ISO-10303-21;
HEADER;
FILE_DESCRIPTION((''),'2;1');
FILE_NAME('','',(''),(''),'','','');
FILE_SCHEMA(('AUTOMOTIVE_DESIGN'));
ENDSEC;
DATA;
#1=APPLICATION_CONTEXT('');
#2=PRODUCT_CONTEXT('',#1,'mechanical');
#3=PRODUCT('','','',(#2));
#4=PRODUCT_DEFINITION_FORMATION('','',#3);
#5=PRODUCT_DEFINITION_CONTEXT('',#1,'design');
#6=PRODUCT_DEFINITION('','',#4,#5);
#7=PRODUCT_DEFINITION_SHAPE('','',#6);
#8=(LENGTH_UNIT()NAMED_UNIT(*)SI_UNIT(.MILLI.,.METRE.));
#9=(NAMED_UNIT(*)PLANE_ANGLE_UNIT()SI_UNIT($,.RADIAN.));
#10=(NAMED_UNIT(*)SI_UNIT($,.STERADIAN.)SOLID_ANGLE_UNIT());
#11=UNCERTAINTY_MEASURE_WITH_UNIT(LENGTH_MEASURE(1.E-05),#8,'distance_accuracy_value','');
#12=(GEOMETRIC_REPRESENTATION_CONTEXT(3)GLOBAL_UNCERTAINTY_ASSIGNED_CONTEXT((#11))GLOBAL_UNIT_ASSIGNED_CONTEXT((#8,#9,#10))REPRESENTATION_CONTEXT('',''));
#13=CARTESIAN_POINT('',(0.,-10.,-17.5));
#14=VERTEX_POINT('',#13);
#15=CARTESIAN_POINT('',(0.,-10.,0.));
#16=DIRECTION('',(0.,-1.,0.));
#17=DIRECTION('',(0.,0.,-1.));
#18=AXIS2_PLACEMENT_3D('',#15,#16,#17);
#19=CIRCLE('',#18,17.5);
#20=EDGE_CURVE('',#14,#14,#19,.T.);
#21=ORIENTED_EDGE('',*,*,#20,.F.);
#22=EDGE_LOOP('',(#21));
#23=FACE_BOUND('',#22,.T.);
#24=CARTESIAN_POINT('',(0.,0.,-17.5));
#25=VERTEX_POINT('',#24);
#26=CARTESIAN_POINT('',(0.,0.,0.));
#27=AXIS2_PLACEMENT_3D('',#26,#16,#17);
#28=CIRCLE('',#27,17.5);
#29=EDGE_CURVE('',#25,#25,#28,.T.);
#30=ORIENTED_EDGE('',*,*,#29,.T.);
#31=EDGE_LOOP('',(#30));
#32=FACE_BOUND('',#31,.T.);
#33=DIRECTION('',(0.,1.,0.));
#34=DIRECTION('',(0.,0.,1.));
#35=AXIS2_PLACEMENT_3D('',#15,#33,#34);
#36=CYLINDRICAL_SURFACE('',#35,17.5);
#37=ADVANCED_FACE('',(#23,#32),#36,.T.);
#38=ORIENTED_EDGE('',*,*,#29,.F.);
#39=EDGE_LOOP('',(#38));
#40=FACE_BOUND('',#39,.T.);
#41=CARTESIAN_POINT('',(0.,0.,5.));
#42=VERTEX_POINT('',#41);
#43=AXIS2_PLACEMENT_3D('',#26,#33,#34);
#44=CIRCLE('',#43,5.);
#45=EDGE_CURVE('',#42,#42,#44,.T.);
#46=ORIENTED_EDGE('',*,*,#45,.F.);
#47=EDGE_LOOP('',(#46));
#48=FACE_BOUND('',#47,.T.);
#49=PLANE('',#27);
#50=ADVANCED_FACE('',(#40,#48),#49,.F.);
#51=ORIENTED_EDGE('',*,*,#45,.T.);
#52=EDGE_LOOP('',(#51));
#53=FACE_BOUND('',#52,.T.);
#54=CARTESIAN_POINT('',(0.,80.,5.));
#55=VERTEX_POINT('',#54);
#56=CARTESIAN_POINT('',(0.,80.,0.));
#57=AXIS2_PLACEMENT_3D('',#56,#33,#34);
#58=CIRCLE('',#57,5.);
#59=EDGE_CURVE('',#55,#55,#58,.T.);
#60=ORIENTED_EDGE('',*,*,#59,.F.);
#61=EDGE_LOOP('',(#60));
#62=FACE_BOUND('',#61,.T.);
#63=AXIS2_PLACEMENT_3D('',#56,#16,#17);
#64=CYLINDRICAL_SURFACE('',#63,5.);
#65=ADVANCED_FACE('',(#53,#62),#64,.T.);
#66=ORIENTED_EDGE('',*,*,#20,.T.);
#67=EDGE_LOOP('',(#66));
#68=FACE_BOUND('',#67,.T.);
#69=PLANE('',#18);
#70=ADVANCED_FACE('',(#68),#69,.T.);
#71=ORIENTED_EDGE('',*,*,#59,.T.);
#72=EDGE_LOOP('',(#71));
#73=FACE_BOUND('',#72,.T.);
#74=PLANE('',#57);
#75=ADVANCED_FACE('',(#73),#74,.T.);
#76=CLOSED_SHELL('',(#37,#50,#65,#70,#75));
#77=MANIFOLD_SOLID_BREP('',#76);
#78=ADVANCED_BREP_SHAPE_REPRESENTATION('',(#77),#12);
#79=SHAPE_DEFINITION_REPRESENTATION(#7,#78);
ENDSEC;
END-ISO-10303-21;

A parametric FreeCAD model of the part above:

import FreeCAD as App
import Part
import Sketcher
Q = App.Units.Quantity

doc = App.newDocument("Part")
body = doc.addObject("PartDesign::Body", "Body")

# Sketch on XZ plane
sketch1 = doc.addObject("Sketcher::SketchObject", "Sketch")
body.addObject(sketch1)
sketch1.AttachmentSupport = (doc.XZ_Plane, [""])
sketch1.MapMode = "FlatFace"
sketch1.addGeometry(Part.Circle(App.Vector(0, 0, 0), App.Vector(0, 0, 1), 5), False)
sketch1.addConstraint(Sketcher.Constraint("Coincident", 0, 3, -1, 1))
sketch1.addConstraint(Sketcher.Constraint("Diameter", 0, Q("10 mm")))
pad1 = doc.addObject("PartDesign::Pad", "Pad")
body.addObject(pad1)
pad1.Profile = sketch1
pad1.Length = 80
pad1.Reversed = True

# Sketch on XZ plane
sketch2 = doc.addObject("Sketcher::SketchObject", "Sketch001")
body.addObject(sketch2)
sketch2.AttachmentSupport = (doc.XZ_Plane, [""])
sketch2.MapMode = "FlatFace"
sketch2.addGeometry(Part.Circle(App.Vector(0, 0, 0), App.Vector(0, 0, 1), 18), False)
sketch2.addConstraint(Sketcher.Constraint("Coincident", 0, 3, -1, 1))
sketch2.addConstraint(Sketcher.Constraint("Diameter", 0, Q("35 mm")))
pad2 = doc.addObject("PartDesign::Pad", "Pad001")
body.addObject(pad2)
pad2.Profile = sketch2
pad2.Length = 10

doc.recompute()
